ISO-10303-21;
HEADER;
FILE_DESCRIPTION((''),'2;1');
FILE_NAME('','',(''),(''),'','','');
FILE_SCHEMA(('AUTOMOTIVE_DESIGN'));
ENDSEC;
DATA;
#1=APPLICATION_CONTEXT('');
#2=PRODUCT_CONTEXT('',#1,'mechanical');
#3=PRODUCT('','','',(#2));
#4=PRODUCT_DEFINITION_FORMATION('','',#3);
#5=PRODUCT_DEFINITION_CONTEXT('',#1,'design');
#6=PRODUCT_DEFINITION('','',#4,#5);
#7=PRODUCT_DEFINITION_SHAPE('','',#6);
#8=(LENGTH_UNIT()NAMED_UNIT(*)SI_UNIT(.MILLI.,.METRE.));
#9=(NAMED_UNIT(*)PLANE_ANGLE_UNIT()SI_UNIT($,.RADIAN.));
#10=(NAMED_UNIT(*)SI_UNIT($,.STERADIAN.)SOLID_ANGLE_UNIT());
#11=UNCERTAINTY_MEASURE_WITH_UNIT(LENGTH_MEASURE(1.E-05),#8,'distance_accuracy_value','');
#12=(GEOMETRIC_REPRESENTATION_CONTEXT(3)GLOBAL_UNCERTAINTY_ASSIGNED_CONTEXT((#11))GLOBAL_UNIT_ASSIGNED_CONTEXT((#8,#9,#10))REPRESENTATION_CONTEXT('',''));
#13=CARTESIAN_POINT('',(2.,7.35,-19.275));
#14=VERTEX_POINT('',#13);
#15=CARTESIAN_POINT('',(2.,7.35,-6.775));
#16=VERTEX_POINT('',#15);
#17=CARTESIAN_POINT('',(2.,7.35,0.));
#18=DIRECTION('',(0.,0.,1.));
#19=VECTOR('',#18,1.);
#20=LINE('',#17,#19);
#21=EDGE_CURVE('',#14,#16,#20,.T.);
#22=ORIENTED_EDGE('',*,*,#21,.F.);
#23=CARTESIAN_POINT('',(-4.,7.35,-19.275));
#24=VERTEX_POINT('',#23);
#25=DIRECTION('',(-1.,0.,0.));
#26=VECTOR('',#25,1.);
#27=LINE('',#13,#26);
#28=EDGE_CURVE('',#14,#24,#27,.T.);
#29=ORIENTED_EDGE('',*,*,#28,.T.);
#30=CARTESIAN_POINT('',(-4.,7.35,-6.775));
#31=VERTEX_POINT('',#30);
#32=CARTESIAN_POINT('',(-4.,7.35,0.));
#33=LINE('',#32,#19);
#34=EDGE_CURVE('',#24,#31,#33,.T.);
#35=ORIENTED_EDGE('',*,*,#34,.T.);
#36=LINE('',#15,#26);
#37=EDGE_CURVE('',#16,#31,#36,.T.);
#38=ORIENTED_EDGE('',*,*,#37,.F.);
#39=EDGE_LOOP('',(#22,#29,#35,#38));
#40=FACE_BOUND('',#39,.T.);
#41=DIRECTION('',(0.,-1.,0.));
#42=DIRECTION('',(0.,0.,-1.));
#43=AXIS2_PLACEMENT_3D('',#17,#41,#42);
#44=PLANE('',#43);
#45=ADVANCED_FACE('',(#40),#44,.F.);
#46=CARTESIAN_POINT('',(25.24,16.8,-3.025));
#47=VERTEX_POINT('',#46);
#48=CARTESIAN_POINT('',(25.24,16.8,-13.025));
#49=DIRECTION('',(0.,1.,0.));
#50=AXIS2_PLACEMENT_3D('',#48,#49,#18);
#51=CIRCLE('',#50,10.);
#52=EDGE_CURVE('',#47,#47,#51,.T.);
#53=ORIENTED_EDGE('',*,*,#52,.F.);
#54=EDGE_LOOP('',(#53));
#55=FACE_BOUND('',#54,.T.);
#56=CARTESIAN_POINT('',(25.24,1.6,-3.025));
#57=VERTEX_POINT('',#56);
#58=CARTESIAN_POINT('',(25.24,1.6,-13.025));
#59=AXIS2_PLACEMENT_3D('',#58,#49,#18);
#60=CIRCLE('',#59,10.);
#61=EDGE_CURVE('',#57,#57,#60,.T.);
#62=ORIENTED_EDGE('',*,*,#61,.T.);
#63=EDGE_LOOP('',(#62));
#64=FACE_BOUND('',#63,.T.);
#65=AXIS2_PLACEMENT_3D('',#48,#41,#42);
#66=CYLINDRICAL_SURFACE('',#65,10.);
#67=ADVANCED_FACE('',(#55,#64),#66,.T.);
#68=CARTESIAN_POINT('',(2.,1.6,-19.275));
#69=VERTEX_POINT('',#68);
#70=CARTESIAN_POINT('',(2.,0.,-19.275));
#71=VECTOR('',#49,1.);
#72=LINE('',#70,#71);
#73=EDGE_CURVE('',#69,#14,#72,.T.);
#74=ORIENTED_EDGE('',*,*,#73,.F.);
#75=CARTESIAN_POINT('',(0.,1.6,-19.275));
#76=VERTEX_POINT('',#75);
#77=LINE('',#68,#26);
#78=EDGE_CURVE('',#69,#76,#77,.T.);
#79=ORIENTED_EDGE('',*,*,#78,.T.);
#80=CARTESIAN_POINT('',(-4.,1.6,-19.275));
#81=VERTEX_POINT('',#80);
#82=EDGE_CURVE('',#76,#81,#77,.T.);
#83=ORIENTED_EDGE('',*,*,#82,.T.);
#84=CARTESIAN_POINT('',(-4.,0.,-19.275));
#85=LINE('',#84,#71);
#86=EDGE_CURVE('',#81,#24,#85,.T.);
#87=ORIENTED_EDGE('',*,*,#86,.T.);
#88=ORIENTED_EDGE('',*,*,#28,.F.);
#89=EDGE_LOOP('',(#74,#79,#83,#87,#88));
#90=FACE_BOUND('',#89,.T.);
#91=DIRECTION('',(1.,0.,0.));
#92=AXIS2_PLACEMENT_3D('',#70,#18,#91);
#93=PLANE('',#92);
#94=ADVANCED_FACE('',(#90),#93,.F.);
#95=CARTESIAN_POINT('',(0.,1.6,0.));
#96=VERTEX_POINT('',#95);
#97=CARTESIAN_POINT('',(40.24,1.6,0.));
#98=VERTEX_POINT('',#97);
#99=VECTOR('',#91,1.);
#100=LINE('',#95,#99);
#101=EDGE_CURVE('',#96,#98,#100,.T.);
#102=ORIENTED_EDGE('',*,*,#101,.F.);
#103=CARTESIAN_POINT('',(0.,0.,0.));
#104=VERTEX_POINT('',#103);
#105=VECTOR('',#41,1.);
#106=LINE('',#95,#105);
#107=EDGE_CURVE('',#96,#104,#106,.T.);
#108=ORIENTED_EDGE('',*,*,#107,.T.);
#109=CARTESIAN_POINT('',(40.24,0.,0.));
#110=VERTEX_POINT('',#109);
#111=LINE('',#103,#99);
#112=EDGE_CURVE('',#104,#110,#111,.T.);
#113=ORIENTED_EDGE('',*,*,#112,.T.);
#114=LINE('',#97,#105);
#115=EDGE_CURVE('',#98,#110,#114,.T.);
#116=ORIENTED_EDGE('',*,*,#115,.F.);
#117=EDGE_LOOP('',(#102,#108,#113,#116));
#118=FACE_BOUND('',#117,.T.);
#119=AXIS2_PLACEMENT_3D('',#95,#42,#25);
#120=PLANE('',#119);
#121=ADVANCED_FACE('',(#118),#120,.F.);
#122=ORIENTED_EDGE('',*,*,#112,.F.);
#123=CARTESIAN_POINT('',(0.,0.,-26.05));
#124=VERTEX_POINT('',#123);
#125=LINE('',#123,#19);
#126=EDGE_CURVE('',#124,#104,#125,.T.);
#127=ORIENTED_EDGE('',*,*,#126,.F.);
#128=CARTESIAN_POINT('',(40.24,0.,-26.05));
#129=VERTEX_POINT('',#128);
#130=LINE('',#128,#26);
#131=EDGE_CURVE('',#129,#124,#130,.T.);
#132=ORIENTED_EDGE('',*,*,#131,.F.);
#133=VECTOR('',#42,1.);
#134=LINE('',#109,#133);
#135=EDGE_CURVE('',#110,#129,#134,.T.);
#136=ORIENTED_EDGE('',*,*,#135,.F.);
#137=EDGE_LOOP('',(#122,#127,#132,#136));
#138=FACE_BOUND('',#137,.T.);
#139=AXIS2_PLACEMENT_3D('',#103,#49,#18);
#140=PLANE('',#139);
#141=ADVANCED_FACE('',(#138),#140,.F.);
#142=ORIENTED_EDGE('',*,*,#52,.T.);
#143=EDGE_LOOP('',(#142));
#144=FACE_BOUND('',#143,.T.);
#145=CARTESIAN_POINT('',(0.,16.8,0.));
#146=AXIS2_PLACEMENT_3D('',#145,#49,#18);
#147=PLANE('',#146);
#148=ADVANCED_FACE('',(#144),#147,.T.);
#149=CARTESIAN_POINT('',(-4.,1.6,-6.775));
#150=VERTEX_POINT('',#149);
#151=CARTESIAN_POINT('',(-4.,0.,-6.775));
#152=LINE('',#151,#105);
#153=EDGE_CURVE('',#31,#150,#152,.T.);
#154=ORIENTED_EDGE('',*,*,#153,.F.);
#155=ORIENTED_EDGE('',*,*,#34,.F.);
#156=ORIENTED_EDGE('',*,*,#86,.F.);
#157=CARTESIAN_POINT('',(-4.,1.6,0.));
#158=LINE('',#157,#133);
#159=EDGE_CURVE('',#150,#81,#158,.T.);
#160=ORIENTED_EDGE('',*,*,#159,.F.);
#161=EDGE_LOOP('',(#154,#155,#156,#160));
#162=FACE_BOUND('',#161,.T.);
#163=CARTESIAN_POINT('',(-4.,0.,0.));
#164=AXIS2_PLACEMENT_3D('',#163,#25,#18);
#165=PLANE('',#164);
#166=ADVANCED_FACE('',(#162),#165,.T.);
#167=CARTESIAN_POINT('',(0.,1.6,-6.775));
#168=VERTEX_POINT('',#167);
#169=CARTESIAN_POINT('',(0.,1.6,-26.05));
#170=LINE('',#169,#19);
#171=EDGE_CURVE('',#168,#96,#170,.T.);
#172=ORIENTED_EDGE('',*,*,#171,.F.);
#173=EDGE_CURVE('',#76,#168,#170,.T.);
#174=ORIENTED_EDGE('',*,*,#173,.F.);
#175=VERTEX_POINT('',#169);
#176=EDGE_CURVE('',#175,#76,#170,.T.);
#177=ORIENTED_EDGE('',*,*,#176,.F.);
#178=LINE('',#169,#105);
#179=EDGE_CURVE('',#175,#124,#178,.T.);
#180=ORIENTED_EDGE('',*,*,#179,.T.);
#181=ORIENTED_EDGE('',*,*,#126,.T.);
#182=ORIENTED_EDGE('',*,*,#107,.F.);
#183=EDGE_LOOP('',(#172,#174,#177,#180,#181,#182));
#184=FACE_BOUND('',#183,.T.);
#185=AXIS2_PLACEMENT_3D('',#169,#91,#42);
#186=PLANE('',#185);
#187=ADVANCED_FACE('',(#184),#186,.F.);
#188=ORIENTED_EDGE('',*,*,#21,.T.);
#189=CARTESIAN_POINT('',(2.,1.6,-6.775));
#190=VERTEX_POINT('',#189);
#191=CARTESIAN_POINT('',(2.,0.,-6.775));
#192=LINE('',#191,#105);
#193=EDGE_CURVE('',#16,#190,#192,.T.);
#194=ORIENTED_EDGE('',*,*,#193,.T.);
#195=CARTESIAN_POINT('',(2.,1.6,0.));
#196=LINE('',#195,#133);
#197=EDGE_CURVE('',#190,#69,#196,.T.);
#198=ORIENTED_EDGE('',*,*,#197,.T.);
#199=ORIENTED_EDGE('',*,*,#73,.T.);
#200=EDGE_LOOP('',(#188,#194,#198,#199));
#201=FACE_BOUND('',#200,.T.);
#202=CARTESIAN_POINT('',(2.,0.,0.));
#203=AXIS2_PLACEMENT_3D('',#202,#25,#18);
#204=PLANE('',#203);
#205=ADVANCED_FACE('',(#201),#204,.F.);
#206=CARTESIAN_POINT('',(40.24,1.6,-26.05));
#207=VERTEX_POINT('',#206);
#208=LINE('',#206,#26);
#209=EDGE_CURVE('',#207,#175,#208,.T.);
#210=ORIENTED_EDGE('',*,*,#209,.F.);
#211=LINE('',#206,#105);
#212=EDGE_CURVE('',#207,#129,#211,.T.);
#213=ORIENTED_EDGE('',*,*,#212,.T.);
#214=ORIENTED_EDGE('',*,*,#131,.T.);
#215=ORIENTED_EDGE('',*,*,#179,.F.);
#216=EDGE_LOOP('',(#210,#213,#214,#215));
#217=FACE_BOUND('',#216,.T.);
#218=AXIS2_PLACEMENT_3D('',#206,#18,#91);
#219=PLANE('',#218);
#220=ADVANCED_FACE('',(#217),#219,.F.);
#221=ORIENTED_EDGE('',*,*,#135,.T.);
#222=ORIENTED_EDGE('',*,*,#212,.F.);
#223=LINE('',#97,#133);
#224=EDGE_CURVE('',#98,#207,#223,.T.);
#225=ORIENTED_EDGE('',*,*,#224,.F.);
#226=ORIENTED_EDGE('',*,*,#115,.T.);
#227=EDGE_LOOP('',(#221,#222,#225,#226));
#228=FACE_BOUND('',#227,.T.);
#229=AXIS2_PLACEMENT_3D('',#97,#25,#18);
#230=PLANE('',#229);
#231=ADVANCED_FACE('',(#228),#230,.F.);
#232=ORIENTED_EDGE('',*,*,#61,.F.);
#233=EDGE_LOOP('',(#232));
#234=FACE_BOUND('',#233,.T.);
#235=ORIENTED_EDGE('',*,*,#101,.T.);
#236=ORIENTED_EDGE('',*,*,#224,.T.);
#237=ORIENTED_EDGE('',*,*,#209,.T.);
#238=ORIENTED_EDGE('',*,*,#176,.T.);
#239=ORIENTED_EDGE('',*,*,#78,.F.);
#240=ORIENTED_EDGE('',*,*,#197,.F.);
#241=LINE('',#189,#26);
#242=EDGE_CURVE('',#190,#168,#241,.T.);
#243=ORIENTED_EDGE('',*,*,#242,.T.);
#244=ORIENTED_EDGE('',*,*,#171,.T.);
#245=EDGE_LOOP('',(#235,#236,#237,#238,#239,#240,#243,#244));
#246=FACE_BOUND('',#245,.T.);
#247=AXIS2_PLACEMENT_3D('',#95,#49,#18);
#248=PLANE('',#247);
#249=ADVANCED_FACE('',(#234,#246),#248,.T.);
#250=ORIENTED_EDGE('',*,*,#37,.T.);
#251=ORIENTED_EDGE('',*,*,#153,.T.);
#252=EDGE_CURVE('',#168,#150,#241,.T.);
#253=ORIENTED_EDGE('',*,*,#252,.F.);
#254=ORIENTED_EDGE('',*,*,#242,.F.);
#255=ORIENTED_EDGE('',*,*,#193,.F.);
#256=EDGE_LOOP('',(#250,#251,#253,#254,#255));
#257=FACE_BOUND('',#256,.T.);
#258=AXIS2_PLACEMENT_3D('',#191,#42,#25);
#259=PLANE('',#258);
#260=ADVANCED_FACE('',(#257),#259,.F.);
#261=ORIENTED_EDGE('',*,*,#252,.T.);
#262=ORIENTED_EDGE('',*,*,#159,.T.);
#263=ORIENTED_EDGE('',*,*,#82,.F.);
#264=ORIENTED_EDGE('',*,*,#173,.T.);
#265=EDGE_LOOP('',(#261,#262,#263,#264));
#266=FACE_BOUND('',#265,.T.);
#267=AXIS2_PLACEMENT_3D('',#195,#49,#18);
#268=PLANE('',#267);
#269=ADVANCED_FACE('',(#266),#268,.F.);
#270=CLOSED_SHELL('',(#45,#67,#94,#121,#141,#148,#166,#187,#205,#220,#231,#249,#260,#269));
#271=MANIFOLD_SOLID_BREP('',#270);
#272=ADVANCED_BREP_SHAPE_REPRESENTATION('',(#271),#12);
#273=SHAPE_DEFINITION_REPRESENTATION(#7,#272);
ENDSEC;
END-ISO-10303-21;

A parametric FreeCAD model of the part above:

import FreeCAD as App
import Part
import Sketcher

V = App.Vector
Q = App.Units.Quantity


def add_polygon(sketch, points):
    """Adds a closed chain of lines whose ends are joined by coincident constraints."""
    first, n = sketch.GeometryCount, len(points)
    for a, b in zip(points, points[1:] + points[:1]):
        sketch.addGeometry(Part.LineSegment(App.Vector(*a, 0), App.Vector(*b, 0)), False)
    for i in range(n):
        sketch.addConstraint(Sketcher.Constraint("Coincident", first + i, 2, first + (i + 1) % n, 1))

doc = App.newDocument("Part")
body = doc.addObject("PartDesign::Body", "Body")

sketch1 = doc.addObject("Sketcher::SketchObject", "Sketch")
body.addObject(sketch1)
sketch1.AttachmentSupport = (doc.XZ_Plane, [""])
sketch1.MapMode = "FlatFace"
add_polygon(sketch1, [(0, -26), (0, 0), (40, 0), (40, -26)])
sketch1.addConstraint([
    Sketcher.Constraint("Vertical", 0),
    Sketcher.Constraint("Horizontal", 1),
    Sketcher.Constraint("Vertical", 2),
    Sketcher.Constraint("Horizontal", 3),
    Sketcher.Constraint("Coincident", 0, 2, -1, 1),
    Sketcher.Constraint("DistanceX", 1, 1, 1, 2, Q("40.24 mm")),
    Sketcher.Constraint("DistanceY", 0, 1, 0, 2, Q("26.05 mm")),
])
pad1 = doc.addObject("PartDesign::Pad", "Pad")
body.addObject(pad1)
pad1.Profile = sketch1
pad1.Length = 1.6
pad1.Reversed = True

sketch2 = doc.addObject("Sketcher::SketchObject", "Sketch001")
body.addObject(sketch2)
sketch2.AttachmentSupport = (doc.XZ_Plane, [""])
sketch2.MapMode = "FlatFace"
sketch2.AttachmentOffset = App.Placement(V(0, 0, -1.6), App.Rotation())
sketch2.addGeometry(Part.Circle(V(25, -13, 0), V(0, 0, 1), 10), False)
sketch2.addConstraint([
    Sketcher.Constraint("Diameter", 0, Q("20 mm")),
    Sketcher.Constraint("DistanceX", -1, 1, 0, 3, Q("25.24 mm")),
    Sketcher.Constraint("DistanceY", 0, 3, -1, 1, Q("13.025 mm")),
])
pad2 = doc.addObject("PartDesign::Pad", "Pad001")
body.addObject(pad2)
pad2.Profile = sketch2
pad2.Length = 15.2
pad2.Reversed = True

sketch3 = doc.addObject("Sketcher::SketchObject", "Sketch002")
body.addObject(sketch3)
sketch3.AttachmentSupport = (doc.YZ_Plane, [""])
sketch3.MapMode = "FlatFace"
add_polygon(sketch3, [(7, -19), (2, -19), (2, -7), (7, -7)])
sketch3.addConstraint([
    Sketcher.Constraint("Horizontal", 0),
    Sketcher.Constraint("Vertical", 1),
    Sketcher.Constraint("Horizontal", 2),
    Sketcher.Constraint("Vertical", 3),
    Sketcher.Constraint("DistanceY", 1, 1, 1, 2, Q("12.5 mm")),
    Sketcher.Constraint("DistanceX", 0, 2, 0, 1, Q("5.75 mm")),
    Sketcher.Constraint("DistanceX", -1, 1, 0, 2, Q("1.6 mm")),
    Sketcher.Constraint("DistanceY", 0, 2, -1, 1, Q("19.275 mm")),
])
pad3 = doc.addObject("PartDesign::Pad", "Pad002")
body.addObject(pad3)
pad3.Profile = sketch3
pad3.Type = "TwoLengths"
pad3.Length = 4
pad3.Length2 = 2
pad3.Reversed = True

doc.recompute()
